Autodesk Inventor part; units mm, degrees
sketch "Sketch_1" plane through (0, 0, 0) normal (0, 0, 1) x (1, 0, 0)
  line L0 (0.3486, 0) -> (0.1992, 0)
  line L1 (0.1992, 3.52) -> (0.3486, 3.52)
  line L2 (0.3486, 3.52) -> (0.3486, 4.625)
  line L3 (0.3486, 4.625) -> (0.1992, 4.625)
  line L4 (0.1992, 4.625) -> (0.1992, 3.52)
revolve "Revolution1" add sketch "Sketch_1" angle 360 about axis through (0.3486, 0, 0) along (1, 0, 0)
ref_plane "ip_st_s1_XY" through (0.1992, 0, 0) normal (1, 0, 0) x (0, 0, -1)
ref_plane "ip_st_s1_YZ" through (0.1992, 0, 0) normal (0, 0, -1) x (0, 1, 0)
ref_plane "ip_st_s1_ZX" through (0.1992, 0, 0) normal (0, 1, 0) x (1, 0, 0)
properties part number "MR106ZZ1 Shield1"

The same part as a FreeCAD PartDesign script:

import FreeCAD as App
import Part
import Sketcher

V = App.Vector

doc = App.newDocument("Part")
params = doc.addObject("Spreadsheet::Sheet", "Params")
for row, (alias, value) in enumerate([
    ("revolution_angle", "360 deg"),
], start=1):
    params.set(f"A{row}", alias)
    params.set(f"B{row}", "=" + value)
    params.setAlias(f"B{row}", alias)

body = doc.addObject("PartDesign::Body", "Body")

# Sketch on XY plane
sketch1 = body.newObject("Sketcher::SketchObject", "Sketch")
sketch1.AttachmentSupport = (doc.getObject("XY_Plane"), [""])
sketch1.MapMode = "FlatFace"
sketch1.addGeometry([
    Part.LineSegment(V(0.2, 4.62, 0), V(0.2, 3.52, 0)),
    Part.LineSegment(V(0.2, 3.52, 0), V(0.35, 3.52, 0)),
    Part.LineSegment(V(0.35, 3.52, 0), V(0.35, 4.62, 0)),
    Part.LineSegment(V(0.35, 4.62, 0), V(0.2, 4.62, 0)),
], False)
sketch1.addConstraint([
    Sketcher.Constraint("Coincident", 0, 2, 1, 1),
    Sketcher.Constraint("Coincident", 1, 2, 2, 1),
    Sketcher.Constraint("Coincident", 2, 2, 3, 1),
    Sketcher.Constraint("Coincident", 3, 2, 0, 1),
    Sketcher.Constraint("Vertical", 0),
    Sketcher.Constraint("Horizontal", 1),
    Sketcher.Constraint("Vertical", 2),
    Sketcher.Constraint("Horizontal", 3),
    Sketcher.Constraint("DistanceY", 0, 2, 0, 1, 1.105),
    Sketcher.Constraint("DistanceY", -1, 1, 0, 2, 3.52),
    Sketcher.Constraint("DistanceX", 1, 1, 1, 2, 0.1494),
    Sketcher.Constraint("DistanceX", -1, 1, 0, 2, 0.1992),
])
revolution = body.newObject("PartDesign::Revolution", "Revolution")
revolution.Profile = sketch1
revolution.ReferenceAxis = (sketch1, ["H_Axis"])
revolution.setExpression("Angle", "Params.revolution_angle")

doc.recompute()
